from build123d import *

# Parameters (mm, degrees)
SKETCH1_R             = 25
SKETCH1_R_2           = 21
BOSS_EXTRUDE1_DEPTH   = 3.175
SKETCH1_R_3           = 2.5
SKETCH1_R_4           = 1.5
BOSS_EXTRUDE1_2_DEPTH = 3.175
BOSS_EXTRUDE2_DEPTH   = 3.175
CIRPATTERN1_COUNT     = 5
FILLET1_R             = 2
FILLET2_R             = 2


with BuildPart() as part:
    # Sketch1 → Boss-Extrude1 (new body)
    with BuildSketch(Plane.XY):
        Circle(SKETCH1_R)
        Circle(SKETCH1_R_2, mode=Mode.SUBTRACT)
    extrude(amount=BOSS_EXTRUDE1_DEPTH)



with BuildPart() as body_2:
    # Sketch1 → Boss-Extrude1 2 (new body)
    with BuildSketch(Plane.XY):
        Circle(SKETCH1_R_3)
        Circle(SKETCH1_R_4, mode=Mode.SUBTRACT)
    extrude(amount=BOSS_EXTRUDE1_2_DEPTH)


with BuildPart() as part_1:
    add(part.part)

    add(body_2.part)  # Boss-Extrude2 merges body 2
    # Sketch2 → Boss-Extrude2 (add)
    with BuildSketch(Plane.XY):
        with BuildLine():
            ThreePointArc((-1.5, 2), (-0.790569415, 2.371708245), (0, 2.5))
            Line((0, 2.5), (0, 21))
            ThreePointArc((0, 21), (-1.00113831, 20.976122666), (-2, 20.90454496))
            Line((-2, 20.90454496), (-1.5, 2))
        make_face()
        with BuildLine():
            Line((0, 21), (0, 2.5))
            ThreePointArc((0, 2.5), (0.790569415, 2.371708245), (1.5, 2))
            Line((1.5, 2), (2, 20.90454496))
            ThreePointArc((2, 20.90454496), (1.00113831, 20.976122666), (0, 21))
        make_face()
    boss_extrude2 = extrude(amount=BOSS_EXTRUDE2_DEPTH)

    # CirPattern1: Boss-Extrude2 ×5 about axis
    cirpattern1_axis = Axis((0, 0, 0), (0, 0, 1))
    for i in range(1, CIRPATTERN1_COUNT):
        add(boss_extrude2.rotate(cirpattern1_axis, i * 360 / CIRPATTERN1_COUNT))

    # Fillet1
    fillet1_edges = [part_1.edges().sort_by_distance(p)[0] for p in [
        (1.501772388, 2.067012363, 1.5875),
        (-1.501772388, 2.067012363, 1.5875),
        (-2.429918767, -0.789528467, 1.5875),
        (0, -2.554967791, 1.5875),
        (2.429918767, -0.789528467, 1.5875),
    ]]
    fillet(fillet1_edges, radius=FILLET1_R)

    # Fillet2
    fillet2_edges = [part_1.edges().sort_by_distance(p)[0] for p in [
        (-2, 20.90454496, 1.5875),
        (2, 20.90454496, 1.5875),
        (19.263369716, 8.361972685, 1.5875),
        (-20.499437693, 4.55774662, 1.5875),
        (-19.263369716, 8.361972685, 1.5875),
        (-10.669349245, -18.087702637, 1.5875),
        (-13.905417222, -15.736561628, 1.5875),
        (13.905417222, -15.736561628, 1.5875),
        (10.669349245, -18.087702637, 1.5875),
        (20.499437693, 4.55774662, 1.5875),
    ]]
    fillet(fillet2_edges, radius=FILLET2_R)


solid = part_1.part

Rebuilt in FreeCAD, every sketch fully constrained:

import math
import FreeCAD as App
import Part
import Sketcher

V = App.Vector
Q = App.Units.Quantity


def edges_at(feature, points):
    """Names of the edges that pass closest to the given points."""
    edges = feature.Shape.Edges
    near = lambda p: min(range(len(edges)), key=lambda i: edges[i].distToShape(Part.Vertex(*p))[0])
    return sorted({f"Edge{near(p) + 1}" for p in points})

doc = App.newDocument("Part")
body = doc.addObject("PartDesign::Body", "Body")

# Sketch on XY plane
sketch1 = body.newObject("Sketcher::SketchObject", "Sketch")
sketch1.AttachmentSupport = (doc.getObject("XY_Plane"), [""])
sketch1.MapMode = "FlatFace"
sketch1.addGeometry([
    Part.Circle(V(0, 0, 0), V(0, 0, 1), 25),
    Part.Circle(V(0, 0, 0), V(0, 0, 1), 21),
], False)
sketch1.addConstraint([
    Sketcher.Constraint("Coincident", 0, 3, -1, 1),
    Sketcher.Constraint("Coincident", 1, 3, -1, 1),
    Sketcher.Constraint("Diameter", 0, Q("50 mm")),
    Sketcher.Constraint("Diameter", 1, Q("42 mm")),
])
pad1 = body.newObject("PartDesign::Pad", "Pad")
pad1.Profile = sketch1
pad1.Length = 3.175
body2 = doc.addObject("PartDesign::Body", "Body001")

# Sketch on XY plane
sketch2 = body2.newObject("Sketcher::SketchObject", "Sketch001")
sketch2.AttachmentSupport = (doc.getObject("XY_Plane001"), [""])
sketch2.MapMode = "FlatFace"
sketch2.addGeometry([
    Part.Circle(V(0, 0, 0), V(0, 0, 1), 2.5),
    Part.Circle(V(0, 0, 0), V(0, 0, 1), 1.5),
], False)
sketch2.addConstraint([
    Sketcher.Constraint("Coincident", 0, 3, -1, 1),
    Sketcher.Constraint("Coincident", 1, 3, -1, 1),
    Sketcher.Constraint("Diameter", 0, Q("5 mm")),
    Sketcher.Constraint("Diameter", 1, Q("3 mm")),
])
pad2 = body2.newObject("PartDesign::Pad", "Pad001")
pad2.Profile = sketch2
pad2.Length = 3.175
body.AllowCompound = True
doc.recompute()

boolean = body.newObject("PartDesign::Boolean", "Boolean")
boolean.Type = "Fuse"
boolean.addObjects([body2])

# Sketch on XY plane
sketch3 = body.newObject("Sketcher::SketchObject", "Sketch002")
sketch3.AttachmentSupport = (doc.getObject("XY_Plane"), [""])
sketch3.MapMode = "FlatFace"
sketch3.addGeometry([
    Part.ArcOfCircle(Part.Circle(V(0, 0, 0), V(0, 0, 1), 2.5), math.radians(90), math.radians(127)),  # 0
    Part.ArcOfCircle(Part.Circle(V(0, 0, 0), V(0, 0, 1), 2.5), math.radians(53), math.radians(90)),  # 1
    Part.LineSegment(V(1.5, 2, 0), V(2, 20.9, 0)),  # 2
    Part.ArcOfCircle(Part.Circle(V(0, 0, 0), V(0, 0, 1), 21), math.radians(84.53), math.radians(90)),  # 3
    Part.ArcOfCircle(Part.Circle(V(0, 0, 0), V(0, 0, 1), 21), math.radians(90), math.radians(95.47)),  # 4
    Part.LineSegment(V(-2, 20.9, 0), V(-1.5, 2, 0)),  # 5
], False)
sketch3.addConstraint([
    Sketcher.Constraint("Tangent", 0, 1, 1, 2),
    Sketcher.Constraint("Coincident", 1, 1, 2, 1),
    Sketcher.Constraint("Coincident", 2, 2, 3, 1),
    Sketcher.Constraint("Tangent", 3, 2, 4, 1),
    Sketcher.Constraint("Coincident", 4, 2, 5, 1),
    Sketcher.Constraint("Coincident", 5, 2, 0, 2),
    Sketcher.Constraint("Coincident", 0, 3, -1, 1),
    Sketcher.Constraint("Coincident", 3, 3, -1, 1),
    Sketcher.Constraint("Equal", 0, 1),
    Sketcher.Constraint("Equal", 3, 4),
    Sketcher.Constraint("PointOnObject", 0, 1, -2),
    Sketcher.Constraint("PointOnObject", 3, 2, -2),
    Sketcher.Constraint("Horizontal", 2, 2, 4, 2),
    Sketcher.Constraint("Horizontal", 1, 1, 5, 2),
    Sketcher.Constraint("Radius", 3, Q("21 mm")),
    Sketcher.Constraint("Radius", 0, Q("2.5 mm")),
    Sketcher.Constraint("DistanceY", -1, 1, 1, 1, Q("2 mm")),
    Sketcher.Constraint("DistanceX", -1, 1, 2, 2, Q("2 mm")),
])
pad3 = body.newObject("PartDesign::Pad", "Pad002")
pad3.Profile = sketch3
pad3.Length = 3.175
doc.recompute()

polarpattern = body.newObject("PartDesign::PolarPattern", "PolarPattern")
polarpattern.Originals = [pad3]
polarpattern.Axis = (doc.getObject("Z_Axis"), [""])
polarpattern.Angle = 360
polarpattern.Occurrences = 5
body.Tip = polarpattern
doc.recompute()

fillet = body.newObject("PartDesign::Fillet", "Fillet")
fillet.Base = (polarpattern, edges_at(polarpattern, [
    (1.502, 2.067, 1.587),
    (-1.502, 2.067, 1.587),
    (-2.43, -0.79, 1.587),
    (0, -2.555, 1.587),
    (2.43, -0.79, 1.587),
]))
fillet.Radius = 2
doc.recompute()

fillet2 = body.newObject("PartDesign::Fillet", "Fillet001")
fillet2.Base = (fillet, edges_at(fillet, [
    (-2, 20.905, 1.587),
    (2, 20.905, 1.587),
    (19.263, 8.362, 1.587),
    (-20.499, 4.558, 1.587),
    (-19.263, 8.362, 1.587),
    (-10.669, -18.088, 1.587),
    (-13.905, -15.737, 1.587),
    (13.905, -15.737, 1.587),
    (10.669, -18.088, 1.587),
    (20.499, 4.558, 1.587),
]))
fillet2.Radius = 2

doc.recompute()
